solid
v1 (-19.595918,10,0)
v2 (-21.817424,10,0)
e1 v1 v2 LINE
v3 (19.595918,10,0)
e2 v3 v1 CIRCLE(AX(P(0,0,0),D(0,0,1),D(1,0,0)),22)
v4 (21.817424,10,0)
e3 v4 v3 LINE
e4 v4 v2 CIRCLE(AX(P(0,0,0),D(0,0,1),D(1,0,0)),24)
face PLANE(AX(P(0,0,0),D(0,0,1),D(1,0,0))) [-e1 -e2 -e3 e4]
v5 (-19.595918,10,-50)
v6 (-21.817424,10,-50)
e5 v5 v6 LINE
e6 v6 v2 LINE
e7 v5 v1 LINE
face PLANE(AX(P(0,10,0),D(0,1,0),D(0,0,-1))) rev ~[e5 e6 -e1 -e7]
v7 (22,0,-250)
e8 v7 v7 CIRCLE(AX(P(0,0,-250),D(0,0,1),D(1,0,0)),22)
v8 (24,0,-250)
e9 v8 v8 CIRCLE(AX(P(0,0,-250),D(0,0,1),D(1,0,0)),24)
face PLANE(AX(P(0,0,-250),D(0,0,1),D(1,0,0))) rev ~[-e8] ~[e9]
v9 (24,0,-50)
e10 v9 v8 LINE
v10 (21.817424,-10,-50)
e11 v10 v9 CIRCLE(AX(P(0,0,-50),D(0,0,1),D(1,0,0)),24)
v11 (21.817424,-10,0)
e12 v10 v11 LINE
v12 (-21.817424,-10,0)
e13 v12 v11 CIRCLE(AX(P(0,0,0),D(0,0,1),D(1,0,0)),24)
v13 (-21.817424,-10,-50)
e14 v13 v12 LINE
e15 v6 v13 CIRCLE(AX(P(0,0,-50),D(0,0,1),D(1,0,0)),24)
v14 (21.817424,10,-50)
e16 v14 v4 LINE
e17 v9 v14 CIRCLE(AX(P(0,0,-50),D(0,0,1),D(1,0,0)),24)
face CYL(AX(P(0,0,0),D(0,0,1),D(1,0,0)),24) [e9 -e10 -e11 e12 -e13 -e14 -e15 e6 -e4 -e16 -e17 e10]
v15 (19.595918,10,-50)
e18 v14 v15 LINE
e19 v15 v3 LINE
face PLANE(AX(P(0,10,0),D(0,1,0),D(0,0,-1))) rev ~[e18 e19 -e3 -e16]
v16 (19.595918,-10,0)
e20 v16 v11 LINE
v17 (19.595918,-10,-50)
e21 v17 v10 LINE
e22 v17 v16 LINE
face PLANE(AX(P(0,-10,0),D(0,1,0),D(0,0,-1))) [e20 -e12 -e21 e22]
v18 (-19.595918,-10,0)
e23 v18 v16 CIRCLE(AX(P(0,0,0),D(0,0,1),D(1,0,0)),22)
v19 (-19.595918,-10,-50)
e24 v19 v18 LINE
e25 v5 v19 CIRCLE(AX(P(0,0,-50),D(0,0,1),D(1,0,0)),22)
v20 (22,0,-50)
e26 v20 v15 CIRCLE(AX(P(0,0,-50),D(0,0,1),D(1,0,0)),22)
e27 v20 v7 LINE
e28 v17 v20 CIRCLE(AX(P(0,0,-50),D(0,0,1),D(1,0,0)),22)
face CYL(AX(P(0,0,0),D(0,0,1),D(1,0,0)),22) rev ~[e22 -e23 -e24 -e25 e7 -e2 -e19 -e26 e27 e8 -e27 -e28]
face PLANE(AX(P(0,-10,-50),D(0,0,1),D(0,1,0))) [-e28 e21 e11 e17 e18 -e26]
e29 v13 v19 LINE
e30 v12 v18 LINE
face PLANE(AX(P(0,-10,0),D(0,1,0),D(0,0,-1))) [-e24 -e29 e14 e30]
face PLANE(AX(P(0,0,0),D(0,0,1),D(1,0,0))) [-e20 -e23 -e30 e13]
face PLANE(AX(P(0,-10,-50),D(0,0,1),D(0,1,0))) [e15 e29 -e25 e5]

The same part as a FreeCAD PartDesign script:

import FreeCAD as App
import Part
import Sketcher
from FreeCAD import Vector


def faces_at(feature, points):
    """Names of the faces that lie closest to the given points."""
    faces = feature.Shape.Faces
    near = lambda p: min(range(len(faces)), key=lambda i: faces[i].distToShape(Part.Vertex(*p))[0])
    return sorted({f"Face{near(p) + 1}" for p in points})

doc = App.newDocument("Part")
body = doc.addObject("PartDesign::Body", "Body")

sketch1 = body.newObject("Sketcher::SketchObject", "Sketch")
sketch1.AttachmentSupport = (doc.getObject("XY_Plane"), [""])
sketch1.MapMode = "FlatFace"
sketch1.addGeometry(Part.Circle(Vector(0, 0, 0), Vector(0, 0, 1), 24), False)
sketch1.addConstraint([
    Sketcher.Constraint("Coincident", 0, 3, -1, 1),
    Sketcher.Constraint("Diameter", 0, 48.0),
])
pad1 = body.newObject("PartDesign::Pad", "Pad")
pad1.Profile = sketch1
pad1.Length = 250
pad1.Reversed = True
doc.recompute()

thickness = body.newObject("PartDesign::Thickness", "Thickness")
thickness.Base = (pad1, faces_at(pad1, [(5.988, 2.131, 0), (5.988, 2.131, -250)]))
thickness.Value = 2
thickness.Reversed = True
thickness.Join = "Intersection"

sketch2 = body.newObject("Sketcher::SketchObject", "Sketch001")
sketch2.AttachmentSupport = (doc.getObject("YZ_Plane"), [""])
sketch2.MapMode = "FlatFace"
sketch2.addGeometry([
    Part.LineSegment(Vector(-10, 0, 0), Vector(-10, -50, 0)),
    Part.LineSegment(Vector(-10, -50, 0), Vector(10, -50, 0)),
    Part.LineSegment(Vector(10, -50, 0), Vector(10, 0, 0)),
    Part.LineSegment(Vector(10, 0, 0), Vector(-10, 0, 0)),
], False)
sketch2.addConstraint([
    Sketcher.Constraint("Coincident", 0, 2, 1, 1),
    Sketcher.Constraint("Coincident", 1, 2, 2, 1),
    Sketcher.Constraint("Coincident", 2, 2, 3, 1),
    Sketcher.Constraint("Coincident", 3, 2, 0, 1),
    Sketcher.Constraint("Vertical", 0),
    Sketcher.Constraint("Horizontal", 1),
    Sketcher.Constraint("Vertical", 2),
    Sketcher.Constraint("Horizontal", 3),
    Sketcher.Constraint("Symmetric", 2, 2, 3, 2, -1, 1),
    Sketcher.Constraint("DistanceY", 0, 2, 0, 1, 50.0),
    Sketcher.Constraint("DistanceX", 0, 2, -1, 1, 10.0),
])
pocket1 = body.newObject("PartDesign::Pocket", "Pocket")
pocket1.Profile = sketch2
pocket1.Length = 60
pocket1.Midplane = True

doc.recompute()
